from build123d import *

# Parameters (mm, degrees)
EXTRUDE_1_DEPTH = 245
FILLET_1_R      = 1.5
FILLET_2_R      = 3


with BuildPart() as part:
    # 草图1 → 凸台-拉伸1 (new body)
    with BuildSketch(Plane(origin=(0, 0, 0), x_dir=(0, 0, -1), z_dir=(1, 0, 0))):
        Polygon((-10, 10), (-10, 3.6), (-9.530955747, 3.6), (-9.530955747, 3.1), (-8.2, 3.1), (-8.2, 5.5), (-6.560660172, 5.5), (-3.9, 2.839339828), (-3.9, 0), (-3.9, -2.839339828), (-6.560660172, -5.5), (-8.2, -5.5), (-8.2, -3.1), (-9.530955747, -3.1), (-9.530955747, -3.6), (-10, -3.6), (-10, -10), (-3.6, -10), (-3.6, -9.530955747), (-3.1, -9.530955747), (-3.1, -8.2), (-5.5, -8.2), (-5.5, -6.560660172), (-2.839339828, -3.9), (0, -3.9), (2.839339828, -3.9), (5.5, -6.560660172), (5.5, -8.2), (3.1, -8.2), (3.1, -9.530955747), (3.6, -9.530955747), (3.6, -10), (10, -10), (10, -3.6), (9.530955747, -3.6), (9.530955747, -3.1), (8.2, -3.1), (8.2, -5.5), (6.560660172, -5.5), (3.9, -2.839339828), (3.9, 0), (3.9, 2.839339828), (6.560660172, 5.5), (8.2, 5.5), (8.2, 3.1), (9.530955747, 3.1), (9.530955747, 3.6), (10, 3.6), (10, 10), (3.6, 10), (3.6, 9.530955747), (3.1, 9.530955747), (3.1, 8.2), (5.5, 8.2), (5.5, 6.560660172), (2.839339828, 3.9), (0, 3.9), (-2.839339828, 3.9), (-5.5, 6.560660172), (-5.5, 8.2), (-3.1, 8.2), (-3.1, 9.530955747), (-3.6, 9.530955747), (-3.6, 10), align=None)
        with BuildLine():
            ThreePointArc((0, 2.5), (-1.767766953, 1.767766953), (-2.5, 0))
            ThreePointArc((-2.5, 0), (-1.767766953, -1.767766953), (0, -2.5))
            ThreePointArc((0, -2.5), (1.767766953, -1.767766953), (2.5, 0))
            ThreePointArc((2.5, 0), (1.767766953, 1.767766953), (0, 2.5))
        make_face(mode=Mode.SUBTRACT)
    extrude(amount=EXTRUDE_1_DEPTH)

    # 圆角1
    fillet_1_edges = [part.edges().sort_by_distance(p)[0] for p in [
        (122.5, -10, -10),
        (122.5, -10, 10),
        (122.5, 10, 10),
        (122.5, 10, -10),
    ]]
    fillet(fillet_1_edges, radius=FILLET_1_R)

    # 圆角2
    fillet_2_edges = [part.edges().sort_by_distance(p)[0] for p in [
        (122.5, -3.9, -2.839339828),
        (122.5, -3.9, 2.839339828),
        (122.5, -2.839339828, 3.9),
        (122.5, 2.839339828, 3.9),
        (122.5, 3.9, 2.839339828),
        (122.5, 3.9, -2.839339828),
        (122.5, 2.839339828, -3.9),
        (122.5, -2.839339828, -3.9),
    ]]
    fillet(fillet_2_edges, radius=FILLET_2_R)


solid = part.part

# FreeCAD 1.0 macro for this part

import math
import FreeCAD as App
import Part
import Sketcher
from FreeCAD import Vector


def edges_at(feature, points):
    """Names of the edges that pass closest to the given points."""
    edges = feature.Shape.Edges
    near = lambda p: min(range(len(edges)), key=lambda i: edges[i].distToShape(Part.Vertex(*p))[0])
    return sorted({f"Edge{near(p) + 1}" for p in points})


def add_polygon(sketch, points):
    """Adds a closed chain of lines whose ends are joined by coincident constraints."""
    first, n = sketch.GeometryCount, len(points)
    for a, b in zip(points, points[1:] + points[:1]):
        sketch.addGeometry(Part.LineSegment(App.Vector(*a, 0), App.Vector(*b, 0)), False)
    for i in range(n):
        sketch.addConstraint(Sketcher.Constraint("Coincident", first + i, 2, first + (i + 1) % n, 1))

doc = App.newDocument("Part")
body = doc.addObject("PartDesign::Body", "Body")

# Sketch on YZ plane
sketch1 = body.newObject("Sketcher::SketchObject", "Sketch")
sketch1.AttachmentSupport = (doc.getObject("YZ_Plane"), [""])
sketch1.MapMode = "FlatFace"
add_polygon(sketch1, [(10, 10), (3.6, 10), (3.6, 9.53), (3.1, 9.53), (3.1, 8.2), (5.5, 8.2), (5.5, 6.56), (2.84, 3.9), (-2.84, 3.9), (-5.5, 6.56), (-5.5, 8.2), (-3.1, 8.2), (-3.1, 9.53), (-3.6, 9.53), (-3.6, 10), (-10, 10), (-10, 3.6), (-9.53, 3.6), (-9.53, 3.1), (-8.2, 3.1), (-8.2, 5.5), (-6.56, 5.5), (-3.9, 2.84), (-3.9, -2.84), (-6.56, -5.5), (-8.2, -5.5), (-8.2, -3.1), (-9.53, -3.1), (-9.53, -3.6), (-10, -3.6), (-10, -10), (-3.6, -10), (-3.6, -9.53), (-3.1, -9.53), (-3.1, -8.2), (-5.5, -8.2), (-5.5, -6.56), (-2.84, -3.9), (2.84, -3.9), (5.5, -6.56), (5.5, -8.2), (3.1, -8.2), (3.1, -9.53), (3.6, -9.53), (3.6, -10), (10, -10), (10, -3.6), (9.53, -3.6), (9.53, -3.1), (8.2, -3.1), (8.2, -5.5), (6.56, -5.5), (3.9, -2.84), (3.9, 2.84), (6.56, 5.5), (8.2, 5.5), (8.2, 3.1), (9.53, 3.1), (9.53, 3.6), (10, 3.6)])  # lines 0-59
sketch1.addGeometry(Part.ArcOfCircle(Part.Circle(Vector(0, 0, 0), Vector(0, 0, 1), 2.5), math.radians(0), math.radians(90)), False)  # 60
sketch1.addGeometry(Part.ArcOfCircle(Part.Circle(Vector(0, 0, 0), Vector(0, 0, 1), 2.5), math.radians(-90), math.radians(0)), False)  # 61
sketch1.addGeometry(Part.ArcOfCircle(Part.Circle(Vector(0, 0, 0), Vector(0, 0, 1), 2.5), math.radians(180), math.radians(270)), False)  # 62
sketch1.addGeometry(Part.ArcOfCircle(Part.Circle(Vector(0, 0, 0), Vector(0, 0, 1), 2.5), math.radians(90), math.radians(180)), False)  # 63
sketch1.addConstraint(Sketcher.Constraint("Tangent", 60, 1, 61, 2))
sketch1.addConstraint(Sketcher.Constraint("Tangent", 61, 1, 62, 2))
sketch1.addConstraint(Sketcher.Constraint("Tangent", 62, 1, 63, 2))
sketch1.addConstraint(Sketcher.Constraint("Tangent", 63, 1, 60, 2))
sketch1.addConstraint(Sketcher.Constraint("Horizontal", 0))
sketch1.addConstraint(Sketcher.Constraint("Vertical", 1))
sketch1.addConstraint(Sketcher.Constraint("Horizontal", 2))
sketch1.addConstraint(Sketcher.Constraint("Vertical", 3))
sketch1.addConstraint(Sketcher.Constraint("Horizontal", 4))
sketch1.addConstraint(Sketcher.Constraint("Vertical", 5))
sketch1.addConstraint(Sketcher.Constraint("Horizontal", 7))
sketch1.addConstraint(Sketcher.Constraint("Vertical", 9))
sketch1.addConstraint(Sketcher.Constraint("Horizontal", 10))
sketch1.addConstraint(Sketcher.Constraint("Vertical", 11))
sketch1.addConstraint(Sketcher.Constraint("Horizontal", 12))
sketch1.addConstraint(Sketcher.Constraint("Vertical", 13))
sketch1.addConstraint(Sketcher.Constraint("Horizontal", 14))
sketch1.addConstraint(Sketcher.Constraint("Vertical", 15))
sketch1.addConstraint(Sketcher.Constraint("Horizontal", 16))
sketch1.addConstraint(Sketcher.Constraint("Vertical", 17))
sketch1.addConstraint(Sketcher.Constraint("Horizontal", 18))
sketch1.addConstraint(Sketcher.Constraint("Vertical", 19))
sketch1.addConstraint(Sketcher.Constraint("Horizontal", 20))
sketch1.addConstraint(Sketcher.Constraint("Vertical", 22))
sketch1.addConstraint(Sketcher.Constraint("Horizontal", 24))
sketch1.addConstraint(Sketcher.Constraint("Vertical", 25))
sketch1.addConstraint(Sketcher.Constraint("Horizontal", 26))
sketch1.addConstraint(Sketcher.Constraint("Vertical", 27))
sketch1.addConstraint(Sketcher.Constraint("Horizontal", 28))
sketch1.addConstraint(Sketcher.Constraint("Vertical", 29))
sketch1.addConstraint(Sketcher.Constraint("Horizontal", 30))
sketch1.addConstraint(Sketcher.Constraint("Vertical", 31))
sketch1.addConstraint(Sketcher.Constraint("Horizontal", 32))
sketch1.addConstraint(Sketcher.Constraint("Vertical", 33))
sketch1.addConstraint(Sketcher.Constraint("Horizontal", 34))
sketch1.addConstraint(Sketcher.Constraint("Vertical", 35))
sketch1.addConstraint(Sketcher.Constraint("Horizontal", 37))
sketch1.addConstraint(Sketcher.Constraint("Vertical", 39))
sketch1.addConstraint(Sketcher.Constraint("Horizontal", 40))
sketch1.addConstraint(Sketcher.Constraint("Vertical", 41))
sketch1.addConstraint(Sketcher.Constraint("Horizontal", 42))
sketch1.addConstraint(Sketcher.Constraint("Vertical", 43))
sketch1.addConstraint(Sketcher.Constraint("Horizontal", 44))
sketch1.addConstraint(Sketcher.Constraint("Vertical", 45))
sketch1.addConstraint(Sketcher.Constraint("Horizontal", 46))
sketch1.addConstraint(Sketcher.Constraint("Vertical", 47))
sketch1.addConstraint(Sketcher.Constraint("Horizontal", 48))
sketch1.addConstraint(Sketcher.Constraint("Vertical", 49))
sketch1.addConstraint(Sketcher.Constraint("Horizontal", 50))
sketch1.addConstraint(Sketcher.Constraint("Vertical", 52))
sketch1.addConstraint(Sketcher.Constraint("Horizontal", 54))
sketch1.addConstraint(Sketcher.Constraint("Vertical", 55))
sketch1.addConstraint(Sketcher.Constraint("Horizontal", 56))
sketch1.addConstraint(Sketcher.Constraint("Vertical", 57))
sketch1.addConstraint(Sketcher.Constraint("Horizontal", 58))
sketch1.addConstraint(Sketcher.Constraint("Vertical", 59))
sketch1.addConstraint(Sketcher.Constraint("Coincident", 60, 3, -1, 1))
sketch1.addConstraint(Sketcher.Constraint("Equal", 60, 61))
sketch1.addConstraint(Sketcher.Constraint("Symmetric", 0, 2, 30, 2, -1, 1))
sketch1.addConstraint(Sketcher.Constraint("Symmetric", 2, 2, 32, 2, -1, 1))
sketch1.addConstraint(Sketcher.Constraint("Symmetric", 4, 2, 34, 2, -1, 1))
sketch1.addConstraint(Sketcher.Constraint("Symmetric", 6, 2, 36, 2, -1, 1))
sketch1.addConstraint(Sketcher.Constraint("Symmetric", 8, 2, 38, 2, -1, 1))
sketch1.addConstraint(Sketcher.Constraint("Symmetric", 10, 2, 40, 2, -1, 1))
sketch1.addConstraint(Sketcher.Constraint("Symmetric", 12, 2, 42, 2, -1, 1))
sketch1.addConstraint(Sketcher.Constraint("Symmetric", 14, 2, 44, 2, -1, 1))
sketch1.addConstraint(Sketcher.Constraint("Symmetric", 16, 2, 46, 2, -1, 1))
sketch1.addConstraint(Sketcher.Constraint("Symmetric", 18, 2, 48, 2, -1, 1))
sketch1.addConstraint(Sketcher.Constraint("Symmetric", 20, 2, 50, 2, -1, 1))
sketch1.addConstraint(Sketcher.Constraint("Symmetric", 21, 2, 51, 2, -1, 1))
sketch1.addConstraint(Sketcher.Constraint("Symmetric", 23, 2, 53, 2, -1, 1))
sketch1.addConstraint(Sketcher.Constraint("Symmetric", 25, 2, 55, 2, -1, 1))
sketch1.addConstraint(Sketcher.Constraint("Symmetric", 27, 2, 57, 2, -1, 1))
sketch1.addConstraint(Sketcher.Constraint("Symmetric", 5, 2, 8, 2, -2))
sketch1.addConstraint(Sketcher.Constraint("Symmetric", 3, 2, 10, 2, -2))
sketch1.addConstraint(Sketcher.Constraint("Symmetric", 1, 2, 12, 2, -2))
sketch1.addConstraint(Sketcher.Constraint("Symmetric", 29, 2, 44, 2, -2))
sketch1.addConstraint(Sketcher.Constraint("Symmetric", 27, 2, 46, 2, -2))
sketch1.addConstraint(Sketcher.Constraint("Symmetric", 25, 2, 48, 2, -2))
sketch1.addConstraint(Sketcher.Constraint("Symmetric", 23, 2, 50, 2, -2))
sketch1.addConstraint(Sketcher.Constraint("PointOnObject", 60, 1, -1))
sketch1.addConstraint(Sketcher.Constraint("PointOnObject", 61, 1, -2))
sketch1.addConstraint(Sketcher.Constraint("PointOnObject", 62, 1, -1))
sketch1.addConstraint(Sketcher.Constraint("PointOnObject", 63, 1, -2))
sketch1.addConstraint(Sketcher.Constraint("Perpendicular", 6, 8))
sketch1.addConstraint(Sketcher.Constraint("Parallel", 8, 21))
sketch1.addConstraint(Sketcher.Constraint("Perpendicular", 21, 23))
sketch1.addConstraint(Sketcher.Constraint("Parallel", 23, 36))
sketch1.addConstraint(Sketcher.Constraint("Perpendicular", 36, 38))
sketch1.addConstraint(Sketcher.Constraint("Perpendicular", 51, 53))
sketch1.addConstraint(Sketcher.Constraint("Horizontal", 22, 2, 51, 2))
sketch1.addConstraint(Sketcher.Constraint("Vertical", 45, 2, 58, 2))
sketch1.addConstraint(Sketcher.Constraint("Equal", 58, 1))
sketch1.addConstraint(Sketcher.Constraint("Equal", 56, 3))
sketch1.addConstraint(Sketcher.Constraint("Equal", 54, 5))
sketch1.addConstraint(Sketcher.Constraint("Equal", 44, 15))
sketch1.addConstraint(Sketcher.Constraint("Equal", 42, 17))
sketch1.addConstraint(Sketcher.Constraint("Equal", 40, 19))
sketch1.addConstraint(Sketcher.Constraint("Equal", 37, 22))
sketch1.addConstraint(Sketcher.Constraint("Equal", 8, 21))
sketch1.addConstraint(Sketcher.Constraint("Radius", 60, 2.5))
sketch1.addConstraint(Sketcher.Constraint("DistanceX", 0, 2, 0, 1, 6.4))
sketch1.addConstraint(Sketcher.Constraint("DistanceX", 2, 2, 2, 1, 0.5))
sketch1.addConstraint(Sketcher.Constraint("DistanceX", 4, 1, 4, 2, 2.4))
sketch1.addConstraint(Sketcher.Constraint("DistanceY", -1, 1, 0, 2, 10.0))
sketch1.addConstraint(Sketcher.Constraint("DistanceY", -1, 1, 3, 2, 8.2))
sketch1.addConstraint(Sketcher.Constraint("DistanceY", -1, 1, 6, 2, 3.9))
sketch1.addConstraint(Sketcher.Constraint("DistanceX", 7, 2, 7, 1, 5.67868))
sketch1.addConstraint(Sketcher.Constraint("DistanceX", 16, 1, 16, 2, 0.469044))
pad1 = body.newObject("PartDesign::Pad", "Pad")
pad1.Profile = sketch1
pad1.Length = 245
doc.recompute()

fillet = body.newObject("PartDesign::Fillet", "Fillet")
fillet.Base = (pad1, edges_at(pad1, [
    (122.5, -10, -10),
    (122.5, -10, 10),
    (122.5, 10, 10),
    (122.5, 10, -10),
]))
fillet.Radius = 1.5
doc.recompute()

fillet2 = body.newObject("PartDesign::Fillet", "Fillet001")
fillet2.Base = (fillet, edges_at(fillet, [
    (122.5, -3.9, -2.839),
    (122.5, -3.9, 2.839),
    (122.5, -2.839, 3.9),
    (122.5, 2.839, 3.9),
    (122.5, 3.9, 2.839),
    (122.5, 3.9, -2.839),
    (122.5, 2.839, -3.9),
    (122.5, -2.839, -3.9),
]))
fillet2.Radius = 3

doc.recompute()
